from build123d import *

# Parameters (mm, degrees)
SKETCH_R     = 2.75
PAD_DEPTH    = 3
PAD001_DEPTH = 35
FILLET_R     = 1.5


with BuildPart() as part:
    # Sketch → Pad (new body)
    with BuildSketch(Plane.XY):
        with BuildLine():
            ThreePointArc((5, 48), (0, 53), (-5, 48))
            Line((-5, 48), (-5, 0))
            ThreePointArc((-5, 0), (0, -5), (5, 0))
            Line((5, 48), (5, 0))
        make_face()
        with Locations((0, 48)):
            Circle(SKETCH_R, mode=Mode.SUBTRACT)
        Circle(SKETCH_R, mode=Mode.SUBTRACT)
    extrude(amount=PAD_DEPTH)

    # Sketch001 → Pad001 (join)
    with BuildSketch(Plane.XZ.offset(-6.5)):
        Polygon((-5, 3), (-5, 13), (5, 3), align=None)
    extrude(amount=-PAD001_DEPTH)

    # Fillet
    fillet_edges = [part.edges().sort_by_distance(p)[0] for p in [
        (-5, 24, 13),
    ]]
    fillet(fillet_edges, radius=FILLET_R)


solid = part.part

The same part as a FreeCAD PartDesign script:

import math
import FreeCAD as App
import Part
import Sketcher
from FreeCAD import Vector


def edges_at(feature, points):
    """Names of the edges that pass closest to the given points."""
    edges = feature.Shape.Edges
    near = lambda p: min(range(len(edges)), key=lambda i: edges[i].distToShape(Part.Vertex(*p))[0])
    return sorted({f"Edge{near(p) + 1}" for p in points})

doc = App.newDocument("Part")
body = doc.addObject("PartDesign::Body", "Body")

sketch1 = body.newObject("Sketcher::SketchObject", "Sketch")
sketch1.AttachmentSupport = (doc.getObject("XY_Plane"), [""])
sketch1.MapMode = "FlatFace"
sketch1.addGeometry([
    Part.ArcOfCircle(Part.Circle(Vector(0, 48, 0), Vector(0, 0, 1), 5), math.radians(0), math.radians(180)),
    Part.LineSegment(Vector(-5, 48, 0), Vector(-5, 0, 0)),
    Part.ArcOfCircle(Part.Circle(Vector(0, 0, 0), Vector(0, 0, 1), 5), math.radians(180), math.radians(360)),
    Part.LineSegment(Vector(5, 0, 0), Vector(5, 48, 0)),
    Part.Circle(Vector(0, 0, 0), Vector(0, 0, 1), 2.8),
    Part.Circle(Vector(0, 48, 0), Vector(0, 0, 1), 2.8),
], False)
sketch1.addConstraint([
    Sketcher.Constraint("Tangent", 0, 2, 1, 1),
    Sketcher.Constraint("Tangent", 1, 2, 2, 1),
    Sketcher.Constraint("Tangent", 2, 2, 3, 1),
    Sketcher.Constraint("Tangent", 3, 2, 0, 1),
    Sketcher.Constraint("Vertical", 1),
    Sketcher.Constraint("Vertical", 3),
    Sketcher.Constraint("Coincident", 2, 3, -1, 1),
    Sketcher.Constraint("Coincident", 4, 3, -1, 1),
    Sketcher.Constraint("Coincident", 5, 3, 0, 3),
    Sketcher.Constraint("Equal", 4, 5),
    Sketcher.Constraint("Radius", 0, 5.0),
    Sketcher.Constraint("Diameter", 4, 5.5),
    Sketcher.Constraint("DistanceY", 1, 2, 1, 1, 48.0),
])
pad1 = body.newObject("PartDesign::Pad", "Pad")
pad1.Profile = sketch1
pad1.Length = 3

sketch2 = body.newObject("Sketcher::SketchObject", "Sketch001")
sketch2.AttachmentSupport = (doc.getObject("XZ_Plane"), [""])
sketch2.MapMode = "FlatFace"
sketch2.AttachmentOffset = App.Placement(Vector(0, 0, -6.5), App.Rotation())
sketch2.addGeometry([
    Part.LineSegment(Vector(-5, 13, 0), Vector(-5, 3, 0)),
    Part.LineSegment(Vector(-5, 3, 0), Vector(5, 3, 0)),
    Part.LineSegment(Vector(5, 3, 0), Vector(-5, 13, 0)),
], False)
sketch2.addConstraint([
    Sketcher.Constraint("Coincident", 0, 2, 1, 1),
    Sketcher.Constraint("Coincident", 1, 2, 2, 1),
    Sketcher.Constraint("Coincident", 2, 2, 0, 1),
    Sketcher.Constraint("Vertical", 0),
    Sketcher.Constraint("Horizontal", 1),
    Sketcher.Constraint("Equal", 1, 0),
    Sketcher.Constraint("DistanceX", 1, 1, 1, 2, 10.0),
    Sketcher.Constraint("DistanceX", 0, 2, -1, 1, 5.0),
    Sketcher.Constraint("DistanceY", -1, 1, 0, 2, 3.0),
])
pad2 = body.newObject("PartDesign::Pad", "Pad001")
pad2.Profile = sketch2
pad2.Length = 35
pad2.Reversed = True
doc.recompute()

fillet = body.newObject("PartDesign::Fillet", "Fillet")
fillet.Base = (pad2, edges_at(pad2, [(-5, 24, 13)]))
fillet.Radius = 1.5

doc.recompute()
